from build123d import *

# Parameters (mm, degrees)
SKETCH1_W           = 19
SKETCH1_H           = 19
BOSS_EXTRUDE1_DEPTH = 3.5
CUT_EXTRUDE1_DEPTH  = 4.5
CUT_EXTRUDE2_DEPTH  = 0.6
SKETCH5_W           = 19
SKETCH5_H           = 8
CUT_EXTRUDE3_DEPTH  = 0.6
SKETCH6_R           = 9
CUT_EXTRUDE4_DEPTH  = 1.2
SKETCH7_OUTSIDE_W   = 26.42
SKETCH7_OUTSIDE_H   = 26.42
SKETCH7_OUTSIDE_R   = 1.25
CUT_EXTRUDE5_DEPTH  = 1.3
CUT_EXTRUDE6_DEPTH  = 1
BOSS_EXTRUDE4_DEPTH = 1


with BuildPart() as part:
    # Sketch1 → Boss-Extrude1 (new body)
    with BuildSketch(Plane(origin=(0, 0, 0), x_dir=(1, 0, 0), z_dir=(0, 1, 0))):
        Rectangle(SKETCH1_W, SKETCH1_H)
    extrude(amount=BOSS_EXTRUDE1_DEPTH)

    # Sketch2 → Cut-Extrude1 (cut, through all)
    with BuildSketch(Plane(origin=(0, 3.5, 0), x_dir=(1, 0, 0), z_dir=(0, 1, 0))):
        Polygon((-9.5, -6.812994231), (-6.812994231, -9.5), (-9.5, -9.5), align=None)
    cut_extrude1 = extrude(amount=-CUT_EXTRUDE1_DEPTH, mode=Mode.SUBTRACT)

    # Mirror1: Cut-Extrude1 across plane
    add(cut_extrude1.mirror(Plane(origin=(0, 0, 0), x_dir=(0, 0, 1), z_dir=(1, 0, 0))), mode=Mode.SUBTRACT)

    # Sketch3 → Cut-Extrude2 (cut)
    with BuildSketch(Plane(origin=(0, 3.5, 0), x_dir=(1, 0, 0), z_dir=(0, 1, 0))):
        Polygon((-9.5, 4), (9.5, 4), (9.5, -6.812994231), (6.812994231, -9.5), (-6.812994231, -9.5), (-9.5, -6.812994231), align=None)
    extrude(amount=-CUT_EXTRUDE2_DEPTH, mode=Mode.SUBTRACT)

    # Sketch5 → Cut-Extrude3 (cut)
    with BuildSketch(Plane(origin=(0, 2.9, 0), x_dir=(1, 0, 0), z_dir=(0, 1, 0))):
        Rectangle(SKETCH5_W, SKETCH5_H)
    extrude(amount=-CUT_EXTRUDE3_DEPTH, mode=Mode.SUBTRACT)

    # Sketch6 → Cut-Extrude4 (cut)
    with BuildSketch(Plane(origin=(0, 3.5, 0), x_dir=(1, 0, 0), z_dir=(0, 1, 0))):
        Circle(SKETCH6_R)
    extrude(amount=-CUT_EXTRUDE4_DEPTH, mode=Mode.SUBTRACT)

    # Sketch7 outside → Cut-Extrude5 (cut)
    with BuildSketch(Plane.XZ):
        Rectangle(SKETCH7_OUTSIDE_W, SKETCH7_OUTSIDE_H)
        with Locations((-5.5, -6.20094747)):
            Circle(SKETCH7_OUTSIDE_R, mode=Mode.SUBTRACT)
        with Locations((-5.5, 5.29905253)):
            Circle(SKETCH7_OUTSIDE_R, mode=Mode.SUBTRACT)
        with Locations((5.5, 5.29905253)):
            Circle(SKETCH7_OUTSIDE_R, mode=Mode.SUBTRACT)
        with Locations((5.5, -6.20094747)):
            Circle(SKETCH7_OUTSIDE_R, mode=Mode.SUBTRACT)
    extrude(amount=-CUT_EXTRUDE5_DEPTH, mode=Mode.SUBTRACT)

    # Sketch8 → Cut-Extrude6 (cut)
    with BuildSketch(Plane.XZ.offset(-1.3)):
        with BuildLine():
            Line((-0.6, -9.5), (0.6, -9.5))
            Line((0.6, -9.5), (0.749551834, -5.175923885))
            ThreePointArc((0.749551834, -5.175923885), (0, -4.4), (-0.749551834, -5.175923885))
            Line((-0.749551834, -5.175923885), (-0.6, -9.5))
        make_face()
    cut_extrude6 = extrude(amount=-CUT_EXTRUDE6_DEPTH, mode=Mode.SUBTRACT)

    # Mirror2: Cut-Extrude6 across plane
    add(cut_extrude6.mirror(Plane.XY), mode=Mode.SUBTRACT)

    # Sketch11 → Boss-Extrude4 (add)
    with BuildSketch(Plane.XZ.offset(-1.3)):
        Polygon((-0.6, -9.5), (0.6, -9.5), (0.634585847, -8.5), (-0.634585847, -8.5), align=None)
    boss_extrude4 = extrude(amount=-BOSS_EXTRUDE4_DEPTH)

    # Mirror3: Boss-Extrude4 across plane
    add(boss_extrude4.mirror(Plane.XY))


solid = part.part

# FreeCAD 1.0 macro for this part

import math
import FreeCAD as App
import Part
import Sketcher
Q = App.Units.Quantity


def add_polygon(sketch, points):
    """Adds a closed chain of lines whose ends are joined by coincident constraints."""
    first, n = sketch.GeometryCount, len(points)
    for a, b in zip(points, points[1:] + points[:1]):
        sketch.addGeometry(Part.LineSegment(App.Vector(*a, 0), App.Vector(*b, 0)), False)
    for i in range(n):
        sketch.addConstraint(Sketcher.Constraint("Coincident", first + i, 2, first + (i + 1) % n, 1))

doc = App.newDocument("Part")
body = doc.addObject("PartDesign::Body", "Body")

sketch1 = body.newObject("Sketcher::SketchObject", "Sketch")
sketch1.AttachmentSupport = (doc.getObject("XZ_Plane"), [""])
sketch1.MapMode = "FlatFace"
add_polygon(sketch1, [(-10, -10), (-10, 10), (10, 10), (10, -10)])
sketch1.addConstraint([
    Sketcher.Constraint("Vertical", 0),
    Sketcher.Constraint("Horizontal", 1),
    Sketcher.Constraint("Vertical", 2),
    Sketcher.Constraint("Horizontal", 3),
    Sketcher.Constraint("Symmetric", 0, 2, 2, 2, -1, 1),
    Sketcher.Constraint("Equal", 3, 0),
    Sketcher.Constraint("DistanceX", 1, 1, 1, 2, Q("19 mm")),
])
pad1 = body.newObject("PartDesign::Pad", "Pad")
pad1.Profile = sketch1
pad1.Length = 3.5
pad1.Reversed = True

sketch2 = body.newObject("Sketcher::SketchObject", "Sketch001")
sketch2.AttachmentSupport = (doc.getObject("XZ_Plane"), [""])
sketch2.MapMode = "FlatFace"
sketch2.AttachmentOffset = App.Placement(App.Vector(0, 0, -3.5), App.Rotation())
add_polygon(sketch2, [(-6.8, 9.5), (-9.5, 6.8), (-9.5, 9.5)])
sketch2.addConstraint([
    Sketcher.Constraint("Vertical", 1),
    Sketcher.Constraint("Horizontal", 2),
    Sketcher.Constraint("Equal", 2, 1),
    Sketcher.Constraint("Distance", 0, Q("3.8 mm")),
    Sketcher.Constraint("DistanceX", 0, 2, -1, 1, Q("9.5 mm")),
    Sketcher.Constraint("DistanceY", -1, 1, 1, 2, Q("9.5 mm")),
])
pocket1 = body.newObject("PartDesign::Pocket", "Pocket")
pocket1.Profile = sketch2
pocket1.Type = "ThroughAll"
pocket1.Reversed = True
doc.recompute()

mirrored = body.newObject("PartDesign::Mirrored", "Mirrored")
mirrored.Originals = [pocket1]
mirrored.MirrorPlane = (doc.getObject("YZ_Plane"), [""])
body.Tip = mirrored

sketch3 = body.newObject("Sketcher::SketchObject", "Sketch002")
sketch3.AttachmentSupport = (doc.getObject("XZ_Plane"), [""])
sketch3.MapMode = "FlatFace"
sketch3.AttachmentOffset = App.Placement(App.Vector(0, 0, -3.5), App.Rotation())
add_polygon(sketch3, [(9.5, -4), (-9.5, -4), (-9.5, 6.8), (-6.8, 9.5), (6.8, 9.5), (9.5, 6.8)])
sketch3.addConstraint([
    Sketcher.Constraint("Horizontal", 0),
    Sketcher.Constraint("Vertical", 1),
    Sketcher.Constraint("Horizontal", 3),
    Sketcher.Constraint("Vertical", 5),
    Sketcher.Constraint("Symmetric", 1, 2, 4, 2, -2),
    Sketcher.Constraint("Perpendicular", 2, 4),
    Sketcher.Constraint("Equal", 2, 4),
    Sketcher.Constraint("DistanceX", 0, 2, 0, 1, Q("19 mm")),
    Sketcher.Constraint("DistanceY", 0, 2, -1, 1, Q("4 mm")),
    Sketcher.Constraint("Distance", 2, Q("3.8 mm")),
    Sketcher.Constraint("DistanceY", -1, 1, 2, 2, Q("9.5 mm")),
])
pocket2 = body.newObject("PartDesign::Pocket", "Pocket001")
pocket2.Profile = sketch3
pocket2.Length = 0.6
pocket2.Reversed = True

sketch4 = body.newObject("Sketcher::SketchObject", "Sketch003")
sketch4.AttachmentSupport = (doc.getObject("XZ_Plane"), [""])
sketch4.MapMode = "FlatFace"
sketch4.AttachmentOffset = App.Placement(App.Vector(0, 0, -2.9), App.Rotation())
add_polygon(sketch4, [(-10, -4), (-10, 4), (10, 4), (10, -4)])
sketch4.addConstraint([
    Sketcher.Constraint("Vertical", 0),
    Sketcher.Constraint("Horizontal", 1),
    Sketcher.Constraint("Vertical", 2),
    Sketcher.Constraint("Horizontal", 3),
    Sketcher.Constraint("Symmetric", 0, 2, 2, 2, -1, 1),
    Sketcher.Constraint("DistanceX", 1, 1, 1, 2, Q("19 mm")),
    Sketcher.Constraint("DistanceY", 0, 1, 0, 2, Q("8 mm")),
])
pocket3 = body.newObject("PartDesign::Pocket", "Pocket002")
pocket3.Profile = sketch4
pocket3.Length = 0.6
pocket3.Reversed = True

sketch5 = body.newObject("Sketcher::SketchObject", "Sketch004")
sketch5.AttachmentSupport = (doc.getObject("XZ_Plane"), [""])
sketch5.MapMode = "FlatFace"
sketch5.AttachmentOffset = App.Placement(App.Vector(0, 0, -3.5), App.Rotation())
sketch5.addGeometry(Part.Circle(App.Vector(0, 0, 0), App.Vector(0, 0, 1), 9), False)
sketch5.addConstraint([
    Sketcher.Constraint("Coincident", 0, 3, -1, 1),
    Sketcher.Constraint("Diameter", 0, Q("18 mm")),
])
pocket4 = body.newObject("PartDesign::Pocket", "Pocket003")
pocket4.Profile = sketch5
pocket4.Length = 1.2
pocket4.Reversed = True

sketch6 = body.newObject("Sketcher::SketchObject", "Sketch005")
sketch6.AttachmentSupport = (doc.getObject("XZ_Plane"), [""])
sketch6.MapMode = "FlatFace"
add_polygon(sketch6, [(-13.2, 13.2), (-13.2, -13.2), (13.2, -13.2), (13.2, 13.2)])
sketch6.addGeometry(Part.Circle(App.Vector(-5.5, -6.2, 0), App.Vector(0, 0, 1), 1.2), False)
sketch6.addGeometry(Part.Circle(App.Vector(5.5, -6.2, 0), App.Vector(0, 0, 1), 1.2), False)
sketch6.addGeometry(Part.Circle(App.Vector(-5.5, 5.3, 0), App.Vector(0, 0, 1), 1.2), False)
sketch6.addGeometry(Part.Circle(App.Vector(5.5, 5.3, 0), App.Vector(0, 0, 1), 1.2), False)
sketch6.addConstraint([
    Sketcher.Constraint("Vertical", 0),
    Sketcher.Constraint("Horizontal", 1),
    Sketcher.Constraint("Vertical", 2),
    Sketcher.Constraint("Horizontal", 3),
    Sketcher.Constraint("Equal", 4, 5),
    Sketcher.Constraint("Equal", 5, 6),
    Sketcher.Constraint("Equal", 6, 7),
    Sketcher.Constraint("Symmetric", 0, 2, 2, 2, -1, 1),
    Sketcher.Constraint("Symmetric", 4, 3, 5, 3, -2),
    Sketcher.Constraint("Symmetric", 6, 3, 7, 3, -2),
    Sketcher.Constraint("Vertical", 4, 3, 6, 3),
    Sketcher.Constraint("Equal", 3, 0),
    Sketcher.Constraint("Diameter", 4, Q("2.5 mm")),
    Sketcher.Constraint("DistanceX", 4, 3, 5, 3, Q("11 mm")),
    Sketcher.Constraint("DistanceX", 1, 1, 1, 2, Q("26.42 mm")),
    Sketcher.Constraint("DistanceY", 4, 3, 6, 3, Q("11.5 mm")),
    Sketcher.Constraint("DistanceY", 4, 3, -1, 1, Q("6.200947 mm")),
])
pocket5 = body.newObject("PartDesign::Pocket", "Pocket004")
pocket5.Profile = sketch6
pocket5.Length = 1.3

sketch7 = body.newObject("Sketcher::SketchObject", "Sketch006")
sketch7.AttachmentSupport = (doc.getObject("XZ_Plane"), [""])
sketch7.MapMode = "FlatFace"
sketch7.AttachmentOffset = App.Placement(App.Vector(0, 0, -1.3), App.Rotation())
sketch7.addGeometry([
    Part.LineSegment(App.Vector(-0.6, -9.5, 0), App.Vector(0.6, -9.5, 0)),
    Part.LineSegment(App.Vector(0.6, -9.5, 0), App.Vector(0.7, -5.2, 0)),
    Part.ArcOfCircle(Part.Circle(App.Vector(0, -5.2, 0), App.Vector(0, 0, 1), 0.8), math.radians(-2), math.radians(182)),
    Part.LineSegment(App.Vector(-0.7, -5.2, 0), App.Vector(-0.6, -9.5, 0)),
], False)
sketch7.addConstraint([
    Sketcher.Constraint("Coincident", 0, 2, 1, 1),
    Sketcher.Constraint("Tangent", 1, 2, 2, 1),
    Sketcher.Constraint("Tangent", 2, 2, 3, 1),
    Sketcher.Constraint("Coincident", 3, 2, 0, 1),
    Sketcher.Constraint("Horizontal", 0),
    Sketcher.Constraint("Symmetric", 1, 2, 2, 2, -2),
    Sketcher.Constraint("Radius", 2, Q("0.75 mm")),
    Sketcher.Constraint("DistanceX", 0, 1, 0, 2, Q("1.2 mm")),
    Sketcher.Constraint("DistanceY", 0, 2, -1, 1, Q("9.5 mm")),
    Sketcher.Constraint("DistanceY", 2, 3, -1, 1, Q("5.15 mm")),
])
pocket6 = body.newObject("PartDesign::Pocket", "Pocket005")
pocket6.Profile = sketch7
pocket6.Length = 1
doc.recompute()

mirrored2 = body.newObject("PartDesign::Mirrored", "Mirrored001")
mirrored2.Originals = [pocket6]
mirrored2.MirrorPlane = (doc.getObject("XY_Plane"), [""])
body.Tip = mirrored2

sketch8 = body.newObject("Sketcher::SketchObject", "Sketch007")
sketch8.AttachmentSupport = (doc.getObject("XZ_Plane"), [""])
sketch8.MapMode = "FlatFace"
sketch8.AttachmentOffset = App.Placement(App.Vector(0, 0, -1.3), App.Rotation())
add_polygon(sketch8, [(-0.6, -9.5), (0.6, -9.5), (0.634586, -8.5), (-0.634586, -8.5)])
sketch8.addConstraint([
    Sketcher.Constraint("Horizontal", 0),
    Sketcher.Constraint("Horizontal", 2),
    Sketcher.Constraint("Equal", 1, 3),
    Sketcher.Constraint("DistanceX", 0, 1, 0, 2, Q("1.2 mm")),
    Sketcher.Constraint("DistanceY", 0, 2, 1, 2, Q("1 mm")),
    Sketcher.Constraint("DistanceX", -1, 1, 0, 2, Q("0.6 mm")),
    Sketcher.Constraint("DistanceY", 0, 2, -1, 1, Q("9.5 mm")),
    Sketcher.Constraint("DistanceX", 2, 2, 2, 1, Q("1.269172 mm")),
])
pad2 = body.newObject("PartDesign::Pad", "Pad001")
pad2.Profile = sketch8
pad2.Length = 1
pad2.Reversed = True
doc.recompute()

mirrored3 = body.newObject("PartDesign::Mirrored", "Mirrored002")
mirrored3.Originals = [pad2]
mirrored3.MirrorPlane = (doc.getObject("XY_Plane"), [""])
body.Tip = mirrored3

doc.recompute()
